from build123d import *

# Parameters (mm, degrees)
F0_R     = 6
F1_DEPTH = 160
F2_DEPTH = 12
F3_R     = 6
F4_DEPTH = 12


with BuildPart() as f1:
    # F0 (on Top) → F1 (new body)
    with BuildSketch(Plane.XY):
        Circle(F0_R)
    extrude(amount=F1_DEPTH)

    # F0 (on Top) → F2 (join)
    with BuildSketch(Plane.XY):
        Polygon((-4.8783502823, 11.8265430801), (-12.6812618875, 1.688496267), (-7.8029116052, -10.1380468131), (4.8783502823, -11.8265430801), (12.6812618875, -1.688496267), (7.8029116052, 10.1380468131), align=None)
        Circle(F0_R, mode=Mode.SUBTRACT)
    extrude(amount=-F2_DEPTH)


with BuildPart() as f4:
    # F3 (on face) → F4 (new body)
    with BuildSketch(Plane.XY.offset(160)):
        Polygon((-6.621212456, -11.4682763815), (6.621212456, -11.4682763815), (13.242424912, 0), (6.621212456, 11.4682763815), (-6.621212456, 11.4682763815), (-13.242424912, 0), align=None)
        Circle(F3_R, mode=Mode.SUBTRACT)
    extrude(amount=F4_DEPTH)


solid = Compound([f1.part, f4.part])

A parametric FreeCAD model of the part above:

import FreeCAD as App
import Part
import Sketcher

V = App.Vector
Q = App.Units.Quantity

doc = App.newDocument("Part")
body = doc.addObject("PartDesign::Body", "Body")
body.AllowCompound = True

# Sketch on XY plane
sketch1 = body.newObject("Sketcher::SketchObject", "Sketch")
sketch1.AttachmentSupport = (doc.getObject("XY_Plane"), [""])
sketch1.MapMode = "FlatFace"
sketch1.addGeometry(Part.Circle(V(0, 0, 0), V(0, 0, 1), 6), False)
sketch1.addConstraint([
    Sketcher.Constraint("Coincident", 0, 3, -1, 1),
    Sketcher.Constraint("Diameter", 0, 12.0),
])
pad1 = body.newObject("PartDesign::Pad", "Pad")
pad1.Profile = sketch1
pad1.Length = 160

# Sketch on XY plane
sketch2 = body.newObject("Sketcher::SketchObject", "Sketch001")
sketch2.AttachmentSupport = (doc.getObject("XY_Plane"), [""])
sketch2.MapMode = "FlatFace"
sketch2.addGeometry([
    Part.LineSegment(V(-5, 12, 0), V(-13, 2, 0)),  # 0
    Part.LineSegment(V(-13, 2, 0), V(-8, -10, 0)),  # 1
    Part.LineSegment(V(-8, -10, 0), V(5, -12, 0)),  # 2
    Part.LineSegment(V(5, -12, 0), V(13, -2, 0)),  # 3
    Part.LineSegment(V(13, -2, 0), V(8, 10, 0)),  # 4
    Part.LineSegment(V(8, 10, 0), V(-5, 12, 0)),  # 5
    Part.Circle(V(0, 0, 0), V(0, 0, 1), 6),  # 6
], False)
sketch2.addConstraint([
    Sketcher.Constraint("Coincident", 0, 2, 1, 1),
    Sketcher.Constraint("Coincident", 1, 2, 2, 1),
    Sketcher.Constraint("Coincident", 2, 2, 3, 1),
    Sketcher.Constraint("Coincident", 3, 2, 4, 1),
    Sketcher.Constraint("Coincident", 4, 2, 5, 1),
    Sketcher.Constraint("Coincident", 5, 2, 0, 1),
    Sketcher.Constraint("Coincident", 6, 3, -1, 1),
    Sketcher.Constraint("Symmetric", 0, 2, 3, 2, -1, 1),
    Sketcher.Constraint("Symmetric", 1, 2, 4, 2, -1, 1),
    Sketcher.Constraint("Symmetric", 2, 2, 5, 2, -1, 1),
    Sketcher.Constraint("Equal", 0, 1),
    Sketcher.Constraint("Equal", 1, 2),
    Sketcher.Constraint("Diameter", 6, 12.0),
    Sketcher.Constraint("Distance", 0, 12.793179),
    Sketcher.Constraint("DistanceX", 0, 2, -1, 1, 12.681262),
    Sketcher.Constraint("DistanceX", 1, 2, -1, 1, 7.802912),
    Sketcher.Constraint("DistanceX", -1, 1, 2, 2, 4.87835),
])
pad2 = body.newObject("PartDesign::Pad", "Pad001")
pad2.Profile = sketch2
pad2.Length = 12
pad2.Reversed = True
body2 = doc.addObject("PartDesign::Body", "Body001")

# Sketch on XY plane
sketch3 = body2.newObject("Sketcher::SketchObject", "Sketch002")
sketch3.AttachmentSupport = (doc.getObject("XY_Plane001"), [""])
sketch3.MapMode = "FlatFace"
sketch3.AttachmentOffset = App.Placement(V(0, 0, 160), App.Rotation())
sketch3.addGeometry([
    Part.LineSegment(V(-7, -11, 0), V(7, -11, 0)),  # 0
    Part.LineSegment(V(7, -11, 0), V(13, 0, 0)),  # 1
    Part.LineSegment(V(13, 0, 0), V(7, 11, 0)),  # 2
    Part.LineSegment(V(7, 11, 0), V(-7, 11, 0)),  # 3
    Part.LineSegment(V(-7, 11, 0), V(-13, 0, 0)),  # 4
    Part.LineSegment(V(-13, 0, 0), V(-7, -11, 0)),  # 5
    Part.Circle(V(0, 0, 0), V(0, 0, 1), 6),  # 6
], False)
sketch3.addConstraint([
    Sketcher.Constraint("Coincident", 0, 2, 1, 1),
    Sketcher.Constraint("Coincident", 1, 2, 2, 1),
    Sketcher.Constraint("Coincident", 2, 2, 3, 1),
    Sketcher.Constraint("Coincident", 3, 2, 4, 1),
    Sketcher.Constraint("Coincident", 4, 2, 5, 1),
    Sketcher.Constraint("Coincident", 5, 2, 0, 1),
    Sketcher.Constraint("Horizontal", 0),
    Sketcher.Constraint("Horizontal", 3),
    Sketcher.Constraint("Coincident", 6, 3, -1, 1),
    Sketcher.Constraint("Symmetric", 0, 2, 3, 2, -1, 1),
    Sketcher.Constraint("Symmetric", 1, 2, 4, 2, -1, 1),
    Sketcher.Constraint("PointOnObject", 1, 2, -1),
    Sketcher.Constraint("Parallel", 2, 5),
    Sketcher.Constraint("Vertical", 0, 2, 2, 2),
    Sketcher.Constraint("Diameter", 6, 12.0),
    Sketcher.Constraint("Angle", 1, Q("60 deg")),
    Sketcher.Constraint("DistanceX", 0, 1, 0, 2, 13.242425),
    Sketcher.Constraint("DistanceX", 4, 2, 1, 2, 26.48485),
])
pad3 = body2.newObject("PartDesign::Pad", "Pad002")
pad3.Profile = sketch3
pad3.Length = 12

doc.recompute()
